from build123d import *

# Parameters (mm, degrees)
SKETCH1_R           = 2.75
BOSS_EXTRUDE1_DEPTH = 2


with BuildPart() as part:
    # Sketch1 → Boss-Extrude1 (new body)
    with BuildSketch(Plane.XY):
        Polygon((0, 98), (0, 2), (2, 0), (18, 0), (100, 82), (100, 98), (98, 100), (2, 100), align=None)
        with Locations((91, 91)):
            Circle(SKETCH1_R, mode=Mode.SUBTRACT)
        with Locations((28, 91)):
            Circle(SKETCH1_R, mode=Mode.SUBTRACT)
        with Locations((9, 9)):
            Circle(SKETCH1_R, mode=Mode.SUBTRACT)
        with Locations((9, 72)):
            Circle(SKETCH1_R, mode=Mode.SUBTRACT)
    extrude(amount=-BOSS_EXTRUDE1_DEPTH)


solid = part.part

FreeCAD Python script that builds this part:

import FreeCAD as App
import Part
import Sketcher

V = App.Vector
Q = App.Units.Quantity


def add_polygon(sketch, points):
    """Adds a closed chain of lines whose ends are joined by coincident constraints."""
    first, n = sketch.GeometryCount, len(points)
    for a, b in zip(points, points[1:] + points[:1]):
        sketch.addGeometry(Part.LineSegment(App.Vector(*a, 0), App.Vector(*b, 0)), False)
    for i in range(n):
        sketch.addConstraint(Sketcher.Constraint("Coincident", first + i, 2, first + (i + 1) % n, 1))

doc = App.newDocument("Part")
body = doc.addObject("PartDesign::Body", "Body")

# Sketch on XY plane
sketch1 = body.newObject("Sketcher::SketchObject", "Sketch")
sketch1.AttachmentSupport = (doc.getObject("XY_Plane"), [""])
sketch1.MapMode = "FlatFace"
add_polygon(sketch1, [(0, 98), (0, 2), (2, 0), (18, 0), (100, 82), (100, 98), (98, 100), (2, 100)])  # lines 0-7
sketch1.addGeometry(Part.Circle(V(9, 9, 0), V(0, 0, 1), 2.8), False)  # 8
sketch1.addGeometry(Part.Circle(V(9, 72, 0), V(0, 0, 1), 2.8), False)  # 9
sketch1.addGeometry(Part.Circle(V(28, 91, 0), V(0, 0, 1), 2.8), False)  # 10
sketch1.addGeometry(Part.Circle(V(91, 91, 0), V(0, 0, 1), 2.8), False)  # 11
sketch1.addConstraint([
    Sketcher.Constraint("Vertical", 0),
    Sketcher.Constraint("Horizontal", 2),
    Sketcher.Constraint("Vertical", 4),
    Sketcher.Constraint("Horizontal", 6),
    Sketcher.Constraint("Equal", 8, 9),
    Sketcher.Constraint("Equal", 9, 10),
    Sketcher.Constraint("Equal", 10, 11),
    Sketcher.Constraint("PointOnObject", 0, 2, -2),
    Sketcher.Constraint("PointOnObject", 1, 2, -1),
    Sketcher.Constraint("Perpendicular", 1, 3),
    Sketcher.Constraint("Perpendicular", 3, 5),
    Sketcher.Constraint("Perpendicular", 5, 7),
    Sketcher.Constraint("Horizontal", 10, 3, 11, 3),
    Sketcher.Constraint("Horizontal", 4, 2, 7, 2),
    Sketcher.Constraint("Vertical", 8, 3, 9, 3),
    Sketcher.Constraint("Vertical", 1, 2, 6, 2),
    Sketcher.Constraint("Equal", 6, 0),
    Sketcher.Constraint("Equal", 2, 4),
    Sketcher.Constraint("Diameter", 8, Q("5.5 mm")),
    Sketcher.Constraint("DistanceX", 2, 1, 2, 2, Q("16 mm")),
    Sketcher.Constraint("DistanceX", 6, 2, 6, 1, Q("96 mm")),
    Sketcher.Constraint("DistanceX", -1, 1, 8, 3, Q("9 mm")),
    Sketcher.Constraint("DistanceY", -1, 1, 8, 3, Q("9 mm")),
    Sketcher.Constraint("DistanceY", -1, 1, 9, 3, Q("72 mm")),
    Sketcher.Constraint("DistanceX", -1, 1, 10, 3, Q("28 mm")),
    Sketcher.Constraint("DistanceY", -1, 1, 10, 3, Q("91 mm")),
    Sketcher.Constraint("DistanceX", -1, 1, 11, 3, Q("91 mm")),
    Sketcher.Constraint("DistanceY", -1, 1, 0, 2, Q("2 mm")),
])
pad1 = body.newObject("PartDesign::Pad", "Pad")
pad1.Profile = sketch1
pad1.Length = 2
pad1.Reversed = True

doc.recompute()
